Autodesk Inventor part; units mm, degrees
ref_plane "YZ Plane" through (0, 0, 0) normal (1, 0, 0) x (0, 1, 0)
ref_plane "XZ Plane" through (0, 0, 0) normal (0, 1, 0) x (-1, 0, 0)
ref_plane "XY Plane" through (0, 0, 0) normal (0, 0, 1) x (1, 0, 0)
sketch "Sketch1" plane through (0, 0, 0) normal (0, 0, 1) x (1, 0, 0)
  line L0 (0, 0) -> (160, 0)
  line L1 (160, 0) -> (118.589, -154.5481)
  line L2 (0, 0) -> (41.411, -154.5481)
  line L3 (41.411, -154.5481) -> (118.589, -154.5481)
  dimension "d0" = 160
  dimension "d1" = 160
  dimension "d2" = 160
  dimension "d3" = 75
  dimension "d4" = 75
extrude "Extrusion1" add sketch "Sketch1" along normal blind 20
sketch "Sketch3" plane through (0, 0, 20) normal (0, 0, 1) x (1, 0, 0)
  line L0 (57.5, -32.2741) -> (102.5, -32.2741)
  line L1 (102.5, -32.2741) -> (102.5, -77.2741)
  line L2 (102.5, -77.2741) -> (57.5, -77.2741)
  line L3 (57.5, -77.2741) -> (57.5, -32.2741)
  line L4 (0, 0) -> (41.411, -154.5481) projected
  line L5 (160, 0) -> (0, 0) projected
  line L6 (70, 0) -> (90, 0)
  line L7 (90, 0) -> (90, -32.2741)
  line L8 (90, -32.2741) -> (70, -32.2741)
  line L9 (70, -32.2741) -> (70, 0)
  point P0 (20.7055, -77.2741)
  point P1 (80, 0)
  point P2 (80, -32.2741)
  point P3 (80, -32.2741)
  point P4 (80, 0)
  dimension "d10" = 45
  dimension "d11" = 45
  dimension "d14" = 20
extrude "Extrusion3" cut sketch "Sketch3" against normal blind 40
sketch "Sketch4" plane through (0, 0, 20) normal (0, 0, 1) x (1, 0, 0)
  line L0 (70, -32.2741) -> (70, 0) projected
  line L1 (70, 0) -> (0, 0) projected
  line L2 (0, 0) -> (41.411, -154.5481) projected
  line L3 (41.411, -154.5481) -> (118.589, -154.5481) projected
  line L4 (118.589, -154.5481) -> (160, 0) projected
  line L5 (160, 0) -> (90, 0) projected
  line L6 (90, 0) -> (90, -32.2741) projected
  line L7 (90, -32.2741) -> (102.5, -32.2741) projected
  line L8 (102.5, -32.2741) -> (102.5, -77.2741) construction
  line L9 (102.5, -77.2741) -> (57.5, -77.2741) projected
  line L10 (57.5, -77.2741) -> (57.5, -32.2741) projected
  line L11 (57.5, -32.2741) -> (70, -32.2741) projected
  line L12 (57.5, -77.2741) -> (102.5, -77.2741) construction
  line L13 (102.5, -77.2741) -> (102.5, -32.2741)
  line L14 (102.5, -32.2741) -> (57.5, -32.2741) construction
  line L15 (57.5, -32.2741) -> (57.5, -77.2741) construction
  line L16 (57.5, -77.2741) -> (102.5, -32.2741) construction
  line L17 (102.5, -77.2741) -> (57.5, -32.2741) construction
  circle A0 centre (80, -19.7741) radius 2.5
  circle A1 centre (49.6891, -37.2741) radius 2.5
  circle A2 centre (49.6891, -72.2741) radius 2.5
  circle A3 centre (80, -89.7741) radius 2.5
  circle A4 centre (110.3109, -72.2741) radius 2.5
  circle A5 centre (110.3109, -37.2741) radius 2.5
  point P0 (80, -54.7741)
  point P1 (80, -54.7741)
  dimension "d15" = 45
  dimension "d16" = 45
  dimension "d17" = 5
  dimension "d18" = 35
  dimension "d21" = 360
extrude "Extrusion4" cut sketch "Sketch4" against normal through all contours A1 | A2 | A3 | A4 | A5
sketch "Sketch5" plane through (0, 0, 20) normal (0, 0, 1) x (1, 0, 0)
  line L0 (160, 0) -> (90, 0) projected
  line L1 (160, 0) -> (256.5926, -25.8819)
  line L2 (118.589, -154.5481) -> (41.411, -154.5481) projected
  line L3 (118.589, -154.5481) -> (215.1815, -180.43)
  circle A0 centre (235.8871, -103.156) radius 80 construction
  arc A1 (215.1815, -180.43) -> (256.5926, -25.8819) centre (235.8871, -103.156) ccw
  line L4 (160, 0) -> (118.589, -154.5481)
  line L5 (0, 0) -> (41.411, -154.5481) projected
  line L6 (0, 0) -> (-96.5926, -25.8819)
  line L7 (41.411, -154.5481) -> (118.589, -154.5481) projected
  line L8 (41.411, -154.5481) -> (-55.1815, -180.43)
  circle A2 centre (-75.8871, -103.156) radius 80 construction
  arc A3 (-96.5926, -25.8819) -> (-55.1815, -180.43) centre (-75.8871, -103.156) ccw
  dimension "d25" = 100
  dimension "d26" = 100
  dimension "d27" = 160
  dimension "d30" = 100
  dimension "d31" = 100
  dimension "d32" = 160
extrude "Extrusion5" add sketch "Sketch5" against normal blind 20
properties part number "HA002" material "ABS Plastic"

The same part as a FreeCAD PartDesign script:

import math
import FreeCAD as App
import Part
import Sketcher

V = App.Vector
Q = App.Units.Quantity


def add_polygon(sketch, points):
    """Adds a closed chain of lines whose ends are joined by coincident constraints."""
    first, n = sketch.GeometryCount, len(points)
    for a, b in zip(points, points[1:] + points[:1]):
        sketch.addGeometry(Part.LineSegment(App.Vector(*a, 0), App.Vector(*b, 0)), False)
    for i in range(n):
        sketch.addConstraint(Sketcher.Constraint("Coincident", first + i, 2, first + (i + 1) % n, 1))

doc = App.newDocument("Part")
params = doc.addObject("Spreadsheet::Sheet", "Params")
for row, (alias, value) in enumerate([
    ("sketch1_width", "160 mm"),
    ("sketch1_length", "160 mm"),
    ("pad1_length", "20 mm"),
    ("sketch2_width", "45 mm"),
    ("sketch2_width2", "20 mm"),
    ("pocket1_length", "40 mm"),
    ("sketch3_diameter", "5 mm"),
    ("sketch4_radius", "80 mm"),
    ("sketch4_length", "100 mm"),
    ("pad2_length", "20 mm"),
], start=1):
    params.set(f"A{row}", alias)
    params.set(f"B{row}", "=" + value)
    params.setAlias(f"B{row}", alias)

body = doc.addObject("PartDesign::Body", "Body")

# Sketch on XY plane
sketch1 = doc.addObject("Sketcher::SketchObject", "Sketch")
body.addObject(sketch1)
sketch1.AttachmentSupport = (doc.XY_Plane, [""])
sketch1.MapMode = "FlatFace"
add_polygon(sketch1, [(160, 0), (0, 0), (41, -155), (119, -155)])  # lines 0-3
sketch1.addConstraint([
    Sketcher.Constraint("Horizontal", 0),
    Sketcher.Constraint("Horizontal", 2),
    Sketcher.Constraint("Coincident", 0, 2, -1, 1),
    Sketcher.Constraint("Equal", 1, 3),
    Sketcher.Constraint("DistanceX", 0, 2, 0, 1, Q("160 mm")),
    Sketcher.Constraint("Angle", 1, Q("-75 deg")),
    Sketcher.Constraint("Distance", 1, Q("160 mm")),
])
sketch1.setExpression("Constraints[8]", "Params.sketch1_width")
sketch1.setExpression("Constraints[10]", "Params.sketch1_length")
pad1 = doc.addObject("PartDesign::Pad", "Pad")
body.addObject(pad1)
pad1.Profile = sketch1
pad1.setExpression("Length", "Params.pad1_length")

# Sketch on XY plane
sketch2 = doc.addObject("Sketcher::SketchObject", "Sketch001")
body.addObject(sketch2)
sketch2.AttachmentSupport = (doc.XY_Plane, [""])
sketch2.MapMode = "FlatFace"
sketch2.AttachmentOffset = App.Placement(V(0, 0, 20), App.Rotation())
add_polygon(sketch2, [(70, -32), (58, -32), (58, -77), (102, -77), (102, -32), (90, -32), (90, 0), (70, 0)])  # lines 0-7
sketch2.addConstraint([
    Sketcher.Constraint("Horizontal", 0),
    Sketcher.Constraint("Vertical", 1),
    Sketcher.Constraint("Horizontal", 2),
    Sketcher.Constraint("Vertical", 3),
    Sketcher.Constraint("Horizontal", 4),
    Sketcher.Constraint("Vertical", 5),
    Sketcher.Constraint("Horizontal", 6),
    Sketcher.Constraint("Vertical", 7),
    Sketcher.Constraint("PointOnObject", 5, 2, -1),
    Sketcher.Constraint("Horizontal", 0, 2, 3, 2),
    Sketcher.Constraint("Equal", 0, 4),
    Sketcher.Constraint("Equal", 2, 1),
    Sketcher.Constraint("DistanceX", 2, 1, 2, 2, Q("45 mm")),
    Sketcher.Constraint("DistanceX", 6, 2, 6, 1, Q("20 mm")),
    Sketcher.Constraint("DistanceX", -1, 1, 4, 2, Q("90 mm")),
    Sketcher.Constraint("DistanceY", 5, 1, 5, 2, Q("32.274 mm")),
])
sketch2.setExpression("Constraints[20]", "Params.sketch2_width")
sketch2.setExpression("Constraints[21]", "Params.sketch2_width2")
pocket1 = doc.addObject("PartDesign::Pocket", "Pocket")
body.addObject(pocket1)
pocket1.Profile = sketch2
pocket1.setExpression("Length", "Params.pocket1_length")

# Sketch on XY plane
sketch3 = doc.addObject("Sketcher::SketchObject", "Sketch002")
body.addObject(sketch3)
sketch3.AttachmentSupport = (doc.XY_Plane, [""])
sketch3.MapMode = "FlatFace"
sketch3.AttachmentOffset = App.Placement(V(0, 0, 20), App.Rotation())
sketch3.addGeometry([
    Part.Circle(V(49.7, -37.3, 0), V(0, 0, 1), 2.5),  # 0
    Part.Circle(V(49.7, -72.3, 0), V(0, 0, 1), 2.5),  # 1
    Part.Circle(V(80, -89.8, 0), V(0, 0, 1), 2.5),  # 2
    Part.Circle(V(110.3, -72.3, 0), V(0, 0, 1), 2.5),  # 3
    Part.Circle(V(110.3, -37.3, 0), V(0, 0, 1), 2.5),  # 4
], False)
sketch3.addConstraint([
    Sketcher.Constraint("Equal", 0, 1),
    Sketcher.Constraint("Equal", 1, 2),
    Sketcher.Constraint("Equal", 2, 3),
    Sketcher.Constraint("Equal", 3, 4),
    Sketcher.Constraint("Horizontal", 1, 3, 3, 3),
    Sketcher.Constraint("Horizontal", 0, 3, 4, 3),
    Sketcher.Constraint("Vertical", 0, 3, 1, 3),
    Sketcher.Constraint("Vertical", 3, 3, 4, 3),
    Sketcher.Constraint("Diameter", 0, Q("5 mm")),
    Sketcher.Constraint("DistanceY", 1, 3, 0, 3, Q("35 mm")),
    Sketcher.Constraint("DistanceX", -1, 1, 2, 3, Q("80 mm")),
    Sketcher.Constraint("DistanceY", 2, 3, 1, 3, Q("17.5 mm")),
    Sketcher.Constraint("DistanceX", -1, 1, 0, 3, Q("49.689 mm")),
    Sketcher.Constraint("DistanceY", 0, 3, -1, 1, Q("37.274 mm")),
    Sketcher.Constraint("DistanceX", -1, 1, 3, 3, Q("110.311 mm")),
])
sketch3.setExpression("Constraints[8]", "Params.sketch3_diameter")
pocket2 = doc.addObject("PartDesign::Pocket", "Pocket001")
body.addObject(pocket2)
pocket2.Profile = sketch3
pocket2.Type = "ThroughAll"

# Sketch on XY plane
sketch4 = doc.addObject("Sketcher::SketchObject", "Sketch003")
body.addObject(sketch4)
sketch4.AttachmentSupport = (doc.XY_Plane, [""])
sketch4.MapMode = "FlatFace"
sketch4.AttachmentOffset = App.Placement(V(0, 0, 20), App.Rotation())
sketch4.addGeometry([
    Part.LineSegment(V(-55, -180, 0), V(41, -155, 0)),  # 0
    Part.LineSegment(V(41, -155, 0), V(0, 0, 0)),  # 1
    Part.LineSegment(V(0, 0, 0), V(-97, -26, 0)),  # 2
    Part.ArcOfCircle(Part.Circle(V(-76, -103, 0), V(0, 0, 1), 80), math.radians(105), math.radians(285)),  # 3
    Part.LineSegment(V(257, -26, 0), V(160, 0, 0)),  # 4
    Part.LineSegment(V(160, 0, 0), V(119, -155, 0)),  # 5
    Part.LineSegment(V(119, -155, 0), V(215, -180, 0)),  # 6
    Part.ArcOfCircle(Part.Circle(V(236, -103, 0), V(0, 0, 1), 80), math.radians(-105), math.radians(75)),  # 7
], False)
sketch4.addConstraint([
    Sketcher.Constraint("Coincident", 0, 2, 1, 1),
    Sketcher.Constraint("Coincident", 1, 2, 2, 1),
    Sketcher.Constraint("Tangent", 2, 2, 3, 1),
    Sketcher.Constraint("Tangent", 3, 2, 0, 1),
    Sketcher.Constraint("Coincident", 4, 2, 5, 1),
    Sketcher.Constraint("Coincident", 5, 2, 6, 1),
    Sketcher.Constraint("Tangent", 6, 2, 7, 1),
    Sketcher.Constraint("Tangent", 7, 2, 4, 1),
    Sketcher.Constraint("Coincident", 1, 2, -1, 1),
    Sketcher.Constraint("Equal", 3, 7),
    Sketcher.Constraint("PointOnObject", 4, 2, -1),
    Sketcher.Constraint("Perpendicular", 0, 1),
    Sketcher.Constraint("Perpendicular", 1, 2),
    Sketcher.Constraint("Perpendicular", 4, 5),
    Sketcher.Constraint("Perpendicular", 5, 6),
    Sketcher.Constraint("Horizontal", 3, 3, 7, 3),
    Sketcher.Constraint("Horizontal", 0, 2, 5, 2),
    Sketcher.Constraint("Radius", 3, Q("80 mm")),
    Sketcher.Constraint("Distance", 0, Q("100 mm")),
    Sketcher.Constraint("DistanceX", -1, 1, 4, 2, Q("160 mm")),
    Sketcher.Constraint("Angle", 0, Q("15 deg")),
])
sketch4.setExpression("Constraints[17]", "Params.sketch4_radius")
sketch4.setExpression("Constraints[18]", "Params.sketch4_length")
pad2 = doc.addObject("PartDesign::Pad", "Pad001")
body.addObject(pad2)
pad2.Profile = sketch4
pad2.setExpression("Length", "Params.pad2_length")
pad2.Reversed = True

doc.recompute()
